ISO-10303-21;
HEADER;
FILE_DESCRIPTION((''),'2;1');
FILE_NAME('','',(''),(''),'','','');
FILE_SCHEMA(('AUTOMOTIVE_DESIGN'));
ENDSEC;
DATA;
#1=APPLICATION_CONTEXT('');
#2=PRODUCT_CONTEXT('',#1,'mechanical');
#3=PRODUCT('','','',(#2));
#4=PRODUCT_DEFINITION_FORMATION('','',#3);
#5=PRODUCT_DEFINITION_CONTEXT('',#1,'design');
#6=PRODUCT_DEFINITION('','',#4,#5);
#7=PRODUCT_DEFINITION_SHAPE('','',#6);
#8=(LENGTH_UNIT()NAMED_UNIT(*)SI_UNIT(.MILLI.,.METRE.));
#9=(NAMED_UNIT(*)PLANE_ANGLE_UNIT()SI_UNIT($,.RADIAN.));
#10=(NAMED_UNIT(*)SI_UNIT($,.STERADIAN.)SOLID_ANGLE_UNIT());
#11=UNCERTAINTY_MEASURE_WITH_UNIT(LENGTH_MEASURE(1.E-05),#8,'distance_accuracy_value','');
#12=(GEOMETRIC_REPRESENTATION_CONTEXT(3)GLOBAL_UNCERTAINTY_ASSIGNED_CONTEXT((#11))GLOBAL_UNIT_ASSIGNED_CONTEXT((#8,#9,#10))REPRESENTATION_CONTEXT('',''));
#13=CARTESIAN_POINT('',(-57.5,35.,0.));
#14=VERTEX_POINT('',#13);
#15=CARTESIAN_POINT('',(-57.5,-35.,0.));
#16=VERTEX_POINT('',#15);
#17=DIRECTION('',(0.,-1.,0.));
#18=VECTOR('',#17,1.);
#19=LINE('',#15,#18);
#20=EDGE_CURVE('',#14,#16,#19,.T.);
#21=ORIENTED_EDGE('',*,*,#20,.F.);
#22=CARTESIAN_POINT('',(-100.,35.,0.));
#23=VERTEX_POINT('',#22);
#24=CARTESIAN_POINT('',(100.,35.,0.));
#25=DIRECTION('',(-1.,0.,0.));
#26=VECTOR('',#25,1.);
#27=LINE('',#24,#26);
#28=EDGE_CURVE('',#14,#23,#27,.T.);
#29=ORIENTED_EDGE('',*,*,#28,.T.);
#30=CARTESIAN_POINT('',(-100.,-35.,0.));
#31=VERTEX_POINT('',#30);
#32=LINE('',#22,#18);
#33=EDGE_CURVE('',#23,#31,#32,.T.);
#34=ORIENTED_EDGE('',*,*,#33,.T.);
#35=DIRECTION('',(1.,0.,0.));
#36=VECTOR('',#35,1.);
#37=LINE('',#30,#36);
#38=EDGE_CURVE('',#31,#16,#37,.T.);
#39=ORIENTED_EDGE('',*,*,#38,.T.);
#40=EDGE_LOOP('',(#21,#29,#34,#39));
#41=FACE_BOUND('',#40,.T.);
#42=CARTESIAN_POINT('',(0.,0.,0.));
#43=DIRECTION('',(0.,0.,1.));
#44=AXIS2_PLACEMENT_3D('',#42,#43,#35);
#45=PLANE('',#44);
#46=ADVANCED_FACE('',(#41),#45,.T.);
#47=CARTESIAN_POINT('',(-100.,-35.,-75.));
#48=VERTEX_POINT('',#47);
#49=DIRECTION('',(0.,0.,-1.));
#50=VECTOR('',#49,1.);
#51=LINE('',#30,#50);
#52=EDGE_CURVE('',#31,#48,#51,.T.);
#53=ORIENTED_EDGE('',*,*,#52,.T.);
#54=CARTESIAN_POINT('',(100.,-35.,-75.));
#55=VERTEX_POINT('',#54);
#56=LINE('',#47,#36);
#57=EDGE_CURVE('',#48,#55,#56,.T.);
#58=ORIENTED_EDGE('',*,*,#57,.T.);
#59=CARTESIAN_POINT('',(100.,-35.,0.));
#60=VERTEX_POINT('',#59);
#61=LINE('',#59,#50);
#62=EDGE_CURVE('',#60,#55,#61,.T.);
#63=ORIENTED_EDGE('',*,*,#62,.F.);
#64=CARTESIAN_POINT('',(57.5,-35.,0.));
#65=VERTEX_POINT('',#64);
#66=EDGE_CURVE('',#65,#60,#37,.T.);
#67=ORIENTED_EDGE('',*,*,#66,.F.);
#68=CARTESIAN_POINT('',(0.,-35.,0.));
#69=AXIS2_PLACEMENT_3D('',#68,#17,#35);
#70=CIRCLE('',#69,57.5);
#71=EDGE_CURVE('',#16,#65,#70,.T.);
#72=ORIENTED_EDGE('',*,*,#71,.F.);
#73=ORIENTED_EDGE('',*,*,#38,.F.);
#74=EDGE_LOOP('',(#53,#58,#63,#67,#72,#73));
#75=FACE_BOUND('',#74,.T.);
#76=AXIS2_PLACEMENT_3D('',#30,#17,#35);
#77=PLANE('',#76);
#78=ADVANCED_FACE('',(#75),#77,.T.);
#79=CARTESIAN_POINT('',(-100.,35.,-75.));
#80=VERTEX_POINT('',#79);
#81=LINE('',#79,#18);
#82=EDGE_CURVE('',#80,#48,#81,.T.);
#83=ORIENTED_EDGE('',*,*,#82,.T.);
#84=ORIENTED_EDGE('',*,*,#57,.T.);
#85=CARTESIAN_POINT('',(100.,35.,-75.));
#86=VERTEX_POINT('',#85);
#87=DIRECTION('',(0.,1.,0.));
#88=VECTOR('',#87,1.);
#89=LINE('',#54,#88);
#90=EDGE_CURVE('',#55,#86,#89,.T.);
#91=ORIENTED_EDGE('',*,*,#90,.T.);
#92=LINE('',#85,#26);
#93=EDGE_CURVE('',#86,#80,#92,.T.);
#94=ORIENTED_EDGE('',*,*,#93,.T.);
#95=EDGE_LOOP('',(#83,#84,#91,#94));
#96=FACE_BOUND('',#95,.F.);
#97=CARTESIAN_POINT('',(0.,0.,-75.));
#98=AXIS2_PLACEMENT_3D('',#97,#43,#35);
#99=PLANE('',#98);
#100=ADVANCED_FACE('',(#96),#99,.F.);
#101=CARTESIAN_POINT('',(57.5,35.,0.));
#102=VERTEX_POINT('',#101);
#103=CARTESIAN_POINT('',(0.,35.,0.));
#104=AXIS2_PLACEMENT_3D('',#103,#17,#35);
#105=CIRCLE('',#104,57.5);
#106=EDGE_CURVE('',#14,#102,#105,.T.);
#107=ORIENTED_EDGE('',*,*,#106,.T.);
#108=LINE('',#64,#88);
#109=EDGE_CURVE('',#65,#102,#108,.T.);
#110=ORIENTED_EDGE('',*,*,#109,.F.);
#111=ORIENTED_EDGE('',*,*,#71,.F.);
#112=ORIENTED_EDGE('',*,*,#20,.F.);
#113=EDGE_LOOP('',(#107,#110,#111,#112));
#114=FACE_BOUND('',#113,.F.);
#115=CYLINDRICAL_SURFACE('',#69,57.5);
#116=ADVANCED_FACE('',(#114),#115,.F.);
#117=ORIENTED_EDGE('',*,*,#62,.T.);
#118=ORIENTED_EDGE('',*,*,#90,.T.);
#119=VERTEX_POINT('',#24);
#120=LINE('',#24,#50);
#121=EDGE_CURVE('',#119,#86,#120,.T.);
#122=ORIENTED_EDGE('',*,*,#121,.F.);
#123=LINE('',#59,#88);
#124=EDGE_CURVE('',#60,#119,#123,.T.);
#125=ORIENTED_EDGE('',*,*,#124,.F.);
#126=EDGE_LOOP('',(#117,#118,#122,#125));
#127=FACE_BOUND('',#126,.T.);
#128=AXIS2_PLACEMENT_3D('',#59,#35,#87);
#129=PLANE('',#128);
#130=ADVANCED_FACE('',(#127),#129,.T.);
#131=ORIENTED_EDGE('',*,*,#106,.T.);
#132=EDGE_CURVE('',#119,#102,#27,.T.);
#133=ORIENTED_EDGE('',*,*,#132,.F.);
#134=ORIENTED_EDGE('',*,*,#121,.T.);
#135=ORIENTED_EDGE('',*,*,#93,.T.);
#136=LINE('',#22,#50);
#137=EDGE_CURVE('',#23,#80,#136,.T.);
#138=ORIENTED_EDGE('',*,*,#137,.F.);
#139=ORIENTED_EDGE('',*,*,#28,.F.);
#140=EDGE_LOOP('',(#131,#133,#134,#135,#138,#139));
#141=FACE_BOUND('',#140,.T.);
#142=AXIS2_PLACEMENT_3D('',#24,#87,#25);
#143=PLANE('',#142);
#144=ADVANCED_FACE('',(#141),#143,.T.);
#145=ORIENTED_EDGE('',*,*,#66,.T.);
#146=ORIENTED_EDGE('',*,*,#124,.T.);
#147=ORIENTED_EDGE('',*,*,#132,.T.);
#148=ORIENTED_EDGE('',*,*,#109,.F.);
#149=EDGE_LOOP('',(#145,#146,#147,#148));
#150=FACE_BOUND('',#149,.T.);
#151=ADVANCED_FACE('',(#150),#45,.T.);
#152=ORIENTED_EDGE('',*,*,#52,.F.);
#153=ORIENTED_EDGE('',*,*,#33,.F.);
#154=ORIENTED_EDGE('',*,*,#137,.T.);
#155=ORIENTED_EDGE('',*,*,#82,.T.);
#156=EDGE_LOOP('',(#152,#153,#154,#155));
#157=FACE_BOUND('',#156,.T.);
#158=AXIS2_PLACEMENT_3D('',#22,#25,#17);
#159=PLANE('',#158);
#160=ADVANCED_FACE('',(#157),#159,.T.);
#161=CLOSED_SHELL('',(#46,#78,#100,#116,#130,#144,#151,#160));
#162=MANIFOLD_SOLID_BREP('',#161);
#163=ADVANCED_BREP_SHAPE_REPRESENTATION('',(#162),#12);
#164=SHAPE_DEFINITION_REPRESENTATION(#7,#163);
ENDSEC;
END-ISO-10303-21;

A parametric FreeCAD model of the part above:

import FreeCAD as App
import Part
import Sketcher
from FreeCAD import Vector

doc = App.newDocument("Part")
body = doc.addObject("PartDesign::Body", "Body")

sketch1 = body.newObject("Sketcher::SketchObject", "Sketch")
sketch1.AttachmentSupport = (doc.getObject("XY_Plane"), [""])
sketch1.MapMode = "FlatFace"
sketch1.addGeometry([
    Part.LineSegment(Vector(-100, 35, 0), Vector(-100, -35, 0)),
    Part.LineSegment(Vector(-100, -35, 0), Vector(100, -35, 0)),
    Part.LineSegment(Vector(100, -35, 0), Vector(100, 35, 0)),
    Part.LineSegment(Vector(100, 35, 0), Vector(-100, 35, 0)),
], False)
sketch1.addConstraint([
    Sketcher.Constraint("Coincident", 0, 2, 1, 1),
    Sketcher.Constraint("Coincident", 1, 2, 2, 1),
    Sketcher.Constraint("Coincident", 2, 2, 3, 1),
    Sketcher.Constraint("Coincident", 3, 2, 0, 1),
    Sketcher.Constraint("Vertical", 0),
    Sketcher.Constraint("Horizontal", 1),
    Sketcher.Constraint("Vertical", 2),
    Sketcher.Constraint("Horizontal", 3),
    Sketcher.Constraint("Symmetric", 0, 2, 2, 2, -1, 1),
    Sketcher.Constraint("DistanceX", 1, 1, 1, 2, 200.0),
    Sketcher.Constraint("DistanceY", 0, 2, 0, 1, 70.0),
])
pad1 = body.newObject("PartDesign::Pad", "Pad")
pad1.Profile = sketch1
pad1.Length = 75
pad1.Reversed = True

sketch2 = body.newObject("Sketcher::SketchObject", "Sketch001")
sketch2.AttachmentSupport = (doc.getObject("XZ_Plane"), [""])
sketch2.MapMode = "FlatFace"
sketch2.AttachmentOffset = App.Placement(Vector(0, 0, 35), App.Rotation())
sketch2.addGeometry(Part.Circle(Vector(0, 0, 0), Vector(0, 0, 1), 58), False)
sketch2.addConstraint([
    Sketcher.Constraint("Coincident", 0, 3, -1, 1),
    Sketcher.Constraint("Diameter", 0, 115.0),
])
pocket1 = body.newObject("PartDesign::Pocket", "Pocket")
pocket1.Profile = sketch2
pocket1.Length = 70

doc.recompute()
